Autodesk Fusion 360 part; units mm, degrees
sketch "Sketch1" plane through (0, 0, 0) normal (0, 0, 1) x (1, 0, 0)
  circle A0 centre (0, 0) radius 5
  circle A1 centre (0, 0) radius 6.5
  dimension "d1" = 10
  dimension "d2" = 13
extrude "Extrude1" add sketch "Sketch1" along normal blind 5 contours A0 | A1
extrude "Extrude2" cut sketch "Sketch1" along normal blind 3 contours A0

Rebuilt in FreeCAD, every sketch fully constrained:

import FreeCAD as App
import Part
import Sketcher

V = App.Vector

doc = App.newDocument("Part")
body = doc.addObject("PartDesign::Body", "Body")

sketch1 = body.newObject("Sketcher::SketchObject", "Sketch")
sketch1.AttachmentSupport = (doc.getObject("XY_Plane"), [""])
sketch1.MapMode = "FlatFace"
sketch1.addGeometry(Part.Circle(V(0, 0, 0), V(0, 0, 1), 6), False)
sketch1.addConstraint([
    Sketcher.Constraint("Coincident", 0, 3, -1, 1),
    Sketcher.Constraint("Diameter", 0, 13.0),
])
pad1 = body.newObject("PartDesign::Pad", "Pad")
pad1.Profile = sketch1
pad1.Length = 5

sketch2 = body.newObject("Sketcher::SketchObject", "Sketch001")
sketch2.AttachmentSupport = (doc.getObject("XY_Plane"), [""])
sketch2.MapMode = "FlatFace"
sketch2.addGeometry(Part.Circle(V(0, 0, 0), V(0, 0, 1), 5), False)
sketch2.addConstraint([
    Sketcher.Constraint("Coincident", 0, 3, -1, 1),
    Sketcher.Constraint("Diameter", 0, 10.0),
])
pocket1 = body.newObject("PartDesign::Pocket", "Pocket")
pocket1.Profile = sketch2
pocket1.Length = 3
pocket1.Reversed = True

doc.recompute()
